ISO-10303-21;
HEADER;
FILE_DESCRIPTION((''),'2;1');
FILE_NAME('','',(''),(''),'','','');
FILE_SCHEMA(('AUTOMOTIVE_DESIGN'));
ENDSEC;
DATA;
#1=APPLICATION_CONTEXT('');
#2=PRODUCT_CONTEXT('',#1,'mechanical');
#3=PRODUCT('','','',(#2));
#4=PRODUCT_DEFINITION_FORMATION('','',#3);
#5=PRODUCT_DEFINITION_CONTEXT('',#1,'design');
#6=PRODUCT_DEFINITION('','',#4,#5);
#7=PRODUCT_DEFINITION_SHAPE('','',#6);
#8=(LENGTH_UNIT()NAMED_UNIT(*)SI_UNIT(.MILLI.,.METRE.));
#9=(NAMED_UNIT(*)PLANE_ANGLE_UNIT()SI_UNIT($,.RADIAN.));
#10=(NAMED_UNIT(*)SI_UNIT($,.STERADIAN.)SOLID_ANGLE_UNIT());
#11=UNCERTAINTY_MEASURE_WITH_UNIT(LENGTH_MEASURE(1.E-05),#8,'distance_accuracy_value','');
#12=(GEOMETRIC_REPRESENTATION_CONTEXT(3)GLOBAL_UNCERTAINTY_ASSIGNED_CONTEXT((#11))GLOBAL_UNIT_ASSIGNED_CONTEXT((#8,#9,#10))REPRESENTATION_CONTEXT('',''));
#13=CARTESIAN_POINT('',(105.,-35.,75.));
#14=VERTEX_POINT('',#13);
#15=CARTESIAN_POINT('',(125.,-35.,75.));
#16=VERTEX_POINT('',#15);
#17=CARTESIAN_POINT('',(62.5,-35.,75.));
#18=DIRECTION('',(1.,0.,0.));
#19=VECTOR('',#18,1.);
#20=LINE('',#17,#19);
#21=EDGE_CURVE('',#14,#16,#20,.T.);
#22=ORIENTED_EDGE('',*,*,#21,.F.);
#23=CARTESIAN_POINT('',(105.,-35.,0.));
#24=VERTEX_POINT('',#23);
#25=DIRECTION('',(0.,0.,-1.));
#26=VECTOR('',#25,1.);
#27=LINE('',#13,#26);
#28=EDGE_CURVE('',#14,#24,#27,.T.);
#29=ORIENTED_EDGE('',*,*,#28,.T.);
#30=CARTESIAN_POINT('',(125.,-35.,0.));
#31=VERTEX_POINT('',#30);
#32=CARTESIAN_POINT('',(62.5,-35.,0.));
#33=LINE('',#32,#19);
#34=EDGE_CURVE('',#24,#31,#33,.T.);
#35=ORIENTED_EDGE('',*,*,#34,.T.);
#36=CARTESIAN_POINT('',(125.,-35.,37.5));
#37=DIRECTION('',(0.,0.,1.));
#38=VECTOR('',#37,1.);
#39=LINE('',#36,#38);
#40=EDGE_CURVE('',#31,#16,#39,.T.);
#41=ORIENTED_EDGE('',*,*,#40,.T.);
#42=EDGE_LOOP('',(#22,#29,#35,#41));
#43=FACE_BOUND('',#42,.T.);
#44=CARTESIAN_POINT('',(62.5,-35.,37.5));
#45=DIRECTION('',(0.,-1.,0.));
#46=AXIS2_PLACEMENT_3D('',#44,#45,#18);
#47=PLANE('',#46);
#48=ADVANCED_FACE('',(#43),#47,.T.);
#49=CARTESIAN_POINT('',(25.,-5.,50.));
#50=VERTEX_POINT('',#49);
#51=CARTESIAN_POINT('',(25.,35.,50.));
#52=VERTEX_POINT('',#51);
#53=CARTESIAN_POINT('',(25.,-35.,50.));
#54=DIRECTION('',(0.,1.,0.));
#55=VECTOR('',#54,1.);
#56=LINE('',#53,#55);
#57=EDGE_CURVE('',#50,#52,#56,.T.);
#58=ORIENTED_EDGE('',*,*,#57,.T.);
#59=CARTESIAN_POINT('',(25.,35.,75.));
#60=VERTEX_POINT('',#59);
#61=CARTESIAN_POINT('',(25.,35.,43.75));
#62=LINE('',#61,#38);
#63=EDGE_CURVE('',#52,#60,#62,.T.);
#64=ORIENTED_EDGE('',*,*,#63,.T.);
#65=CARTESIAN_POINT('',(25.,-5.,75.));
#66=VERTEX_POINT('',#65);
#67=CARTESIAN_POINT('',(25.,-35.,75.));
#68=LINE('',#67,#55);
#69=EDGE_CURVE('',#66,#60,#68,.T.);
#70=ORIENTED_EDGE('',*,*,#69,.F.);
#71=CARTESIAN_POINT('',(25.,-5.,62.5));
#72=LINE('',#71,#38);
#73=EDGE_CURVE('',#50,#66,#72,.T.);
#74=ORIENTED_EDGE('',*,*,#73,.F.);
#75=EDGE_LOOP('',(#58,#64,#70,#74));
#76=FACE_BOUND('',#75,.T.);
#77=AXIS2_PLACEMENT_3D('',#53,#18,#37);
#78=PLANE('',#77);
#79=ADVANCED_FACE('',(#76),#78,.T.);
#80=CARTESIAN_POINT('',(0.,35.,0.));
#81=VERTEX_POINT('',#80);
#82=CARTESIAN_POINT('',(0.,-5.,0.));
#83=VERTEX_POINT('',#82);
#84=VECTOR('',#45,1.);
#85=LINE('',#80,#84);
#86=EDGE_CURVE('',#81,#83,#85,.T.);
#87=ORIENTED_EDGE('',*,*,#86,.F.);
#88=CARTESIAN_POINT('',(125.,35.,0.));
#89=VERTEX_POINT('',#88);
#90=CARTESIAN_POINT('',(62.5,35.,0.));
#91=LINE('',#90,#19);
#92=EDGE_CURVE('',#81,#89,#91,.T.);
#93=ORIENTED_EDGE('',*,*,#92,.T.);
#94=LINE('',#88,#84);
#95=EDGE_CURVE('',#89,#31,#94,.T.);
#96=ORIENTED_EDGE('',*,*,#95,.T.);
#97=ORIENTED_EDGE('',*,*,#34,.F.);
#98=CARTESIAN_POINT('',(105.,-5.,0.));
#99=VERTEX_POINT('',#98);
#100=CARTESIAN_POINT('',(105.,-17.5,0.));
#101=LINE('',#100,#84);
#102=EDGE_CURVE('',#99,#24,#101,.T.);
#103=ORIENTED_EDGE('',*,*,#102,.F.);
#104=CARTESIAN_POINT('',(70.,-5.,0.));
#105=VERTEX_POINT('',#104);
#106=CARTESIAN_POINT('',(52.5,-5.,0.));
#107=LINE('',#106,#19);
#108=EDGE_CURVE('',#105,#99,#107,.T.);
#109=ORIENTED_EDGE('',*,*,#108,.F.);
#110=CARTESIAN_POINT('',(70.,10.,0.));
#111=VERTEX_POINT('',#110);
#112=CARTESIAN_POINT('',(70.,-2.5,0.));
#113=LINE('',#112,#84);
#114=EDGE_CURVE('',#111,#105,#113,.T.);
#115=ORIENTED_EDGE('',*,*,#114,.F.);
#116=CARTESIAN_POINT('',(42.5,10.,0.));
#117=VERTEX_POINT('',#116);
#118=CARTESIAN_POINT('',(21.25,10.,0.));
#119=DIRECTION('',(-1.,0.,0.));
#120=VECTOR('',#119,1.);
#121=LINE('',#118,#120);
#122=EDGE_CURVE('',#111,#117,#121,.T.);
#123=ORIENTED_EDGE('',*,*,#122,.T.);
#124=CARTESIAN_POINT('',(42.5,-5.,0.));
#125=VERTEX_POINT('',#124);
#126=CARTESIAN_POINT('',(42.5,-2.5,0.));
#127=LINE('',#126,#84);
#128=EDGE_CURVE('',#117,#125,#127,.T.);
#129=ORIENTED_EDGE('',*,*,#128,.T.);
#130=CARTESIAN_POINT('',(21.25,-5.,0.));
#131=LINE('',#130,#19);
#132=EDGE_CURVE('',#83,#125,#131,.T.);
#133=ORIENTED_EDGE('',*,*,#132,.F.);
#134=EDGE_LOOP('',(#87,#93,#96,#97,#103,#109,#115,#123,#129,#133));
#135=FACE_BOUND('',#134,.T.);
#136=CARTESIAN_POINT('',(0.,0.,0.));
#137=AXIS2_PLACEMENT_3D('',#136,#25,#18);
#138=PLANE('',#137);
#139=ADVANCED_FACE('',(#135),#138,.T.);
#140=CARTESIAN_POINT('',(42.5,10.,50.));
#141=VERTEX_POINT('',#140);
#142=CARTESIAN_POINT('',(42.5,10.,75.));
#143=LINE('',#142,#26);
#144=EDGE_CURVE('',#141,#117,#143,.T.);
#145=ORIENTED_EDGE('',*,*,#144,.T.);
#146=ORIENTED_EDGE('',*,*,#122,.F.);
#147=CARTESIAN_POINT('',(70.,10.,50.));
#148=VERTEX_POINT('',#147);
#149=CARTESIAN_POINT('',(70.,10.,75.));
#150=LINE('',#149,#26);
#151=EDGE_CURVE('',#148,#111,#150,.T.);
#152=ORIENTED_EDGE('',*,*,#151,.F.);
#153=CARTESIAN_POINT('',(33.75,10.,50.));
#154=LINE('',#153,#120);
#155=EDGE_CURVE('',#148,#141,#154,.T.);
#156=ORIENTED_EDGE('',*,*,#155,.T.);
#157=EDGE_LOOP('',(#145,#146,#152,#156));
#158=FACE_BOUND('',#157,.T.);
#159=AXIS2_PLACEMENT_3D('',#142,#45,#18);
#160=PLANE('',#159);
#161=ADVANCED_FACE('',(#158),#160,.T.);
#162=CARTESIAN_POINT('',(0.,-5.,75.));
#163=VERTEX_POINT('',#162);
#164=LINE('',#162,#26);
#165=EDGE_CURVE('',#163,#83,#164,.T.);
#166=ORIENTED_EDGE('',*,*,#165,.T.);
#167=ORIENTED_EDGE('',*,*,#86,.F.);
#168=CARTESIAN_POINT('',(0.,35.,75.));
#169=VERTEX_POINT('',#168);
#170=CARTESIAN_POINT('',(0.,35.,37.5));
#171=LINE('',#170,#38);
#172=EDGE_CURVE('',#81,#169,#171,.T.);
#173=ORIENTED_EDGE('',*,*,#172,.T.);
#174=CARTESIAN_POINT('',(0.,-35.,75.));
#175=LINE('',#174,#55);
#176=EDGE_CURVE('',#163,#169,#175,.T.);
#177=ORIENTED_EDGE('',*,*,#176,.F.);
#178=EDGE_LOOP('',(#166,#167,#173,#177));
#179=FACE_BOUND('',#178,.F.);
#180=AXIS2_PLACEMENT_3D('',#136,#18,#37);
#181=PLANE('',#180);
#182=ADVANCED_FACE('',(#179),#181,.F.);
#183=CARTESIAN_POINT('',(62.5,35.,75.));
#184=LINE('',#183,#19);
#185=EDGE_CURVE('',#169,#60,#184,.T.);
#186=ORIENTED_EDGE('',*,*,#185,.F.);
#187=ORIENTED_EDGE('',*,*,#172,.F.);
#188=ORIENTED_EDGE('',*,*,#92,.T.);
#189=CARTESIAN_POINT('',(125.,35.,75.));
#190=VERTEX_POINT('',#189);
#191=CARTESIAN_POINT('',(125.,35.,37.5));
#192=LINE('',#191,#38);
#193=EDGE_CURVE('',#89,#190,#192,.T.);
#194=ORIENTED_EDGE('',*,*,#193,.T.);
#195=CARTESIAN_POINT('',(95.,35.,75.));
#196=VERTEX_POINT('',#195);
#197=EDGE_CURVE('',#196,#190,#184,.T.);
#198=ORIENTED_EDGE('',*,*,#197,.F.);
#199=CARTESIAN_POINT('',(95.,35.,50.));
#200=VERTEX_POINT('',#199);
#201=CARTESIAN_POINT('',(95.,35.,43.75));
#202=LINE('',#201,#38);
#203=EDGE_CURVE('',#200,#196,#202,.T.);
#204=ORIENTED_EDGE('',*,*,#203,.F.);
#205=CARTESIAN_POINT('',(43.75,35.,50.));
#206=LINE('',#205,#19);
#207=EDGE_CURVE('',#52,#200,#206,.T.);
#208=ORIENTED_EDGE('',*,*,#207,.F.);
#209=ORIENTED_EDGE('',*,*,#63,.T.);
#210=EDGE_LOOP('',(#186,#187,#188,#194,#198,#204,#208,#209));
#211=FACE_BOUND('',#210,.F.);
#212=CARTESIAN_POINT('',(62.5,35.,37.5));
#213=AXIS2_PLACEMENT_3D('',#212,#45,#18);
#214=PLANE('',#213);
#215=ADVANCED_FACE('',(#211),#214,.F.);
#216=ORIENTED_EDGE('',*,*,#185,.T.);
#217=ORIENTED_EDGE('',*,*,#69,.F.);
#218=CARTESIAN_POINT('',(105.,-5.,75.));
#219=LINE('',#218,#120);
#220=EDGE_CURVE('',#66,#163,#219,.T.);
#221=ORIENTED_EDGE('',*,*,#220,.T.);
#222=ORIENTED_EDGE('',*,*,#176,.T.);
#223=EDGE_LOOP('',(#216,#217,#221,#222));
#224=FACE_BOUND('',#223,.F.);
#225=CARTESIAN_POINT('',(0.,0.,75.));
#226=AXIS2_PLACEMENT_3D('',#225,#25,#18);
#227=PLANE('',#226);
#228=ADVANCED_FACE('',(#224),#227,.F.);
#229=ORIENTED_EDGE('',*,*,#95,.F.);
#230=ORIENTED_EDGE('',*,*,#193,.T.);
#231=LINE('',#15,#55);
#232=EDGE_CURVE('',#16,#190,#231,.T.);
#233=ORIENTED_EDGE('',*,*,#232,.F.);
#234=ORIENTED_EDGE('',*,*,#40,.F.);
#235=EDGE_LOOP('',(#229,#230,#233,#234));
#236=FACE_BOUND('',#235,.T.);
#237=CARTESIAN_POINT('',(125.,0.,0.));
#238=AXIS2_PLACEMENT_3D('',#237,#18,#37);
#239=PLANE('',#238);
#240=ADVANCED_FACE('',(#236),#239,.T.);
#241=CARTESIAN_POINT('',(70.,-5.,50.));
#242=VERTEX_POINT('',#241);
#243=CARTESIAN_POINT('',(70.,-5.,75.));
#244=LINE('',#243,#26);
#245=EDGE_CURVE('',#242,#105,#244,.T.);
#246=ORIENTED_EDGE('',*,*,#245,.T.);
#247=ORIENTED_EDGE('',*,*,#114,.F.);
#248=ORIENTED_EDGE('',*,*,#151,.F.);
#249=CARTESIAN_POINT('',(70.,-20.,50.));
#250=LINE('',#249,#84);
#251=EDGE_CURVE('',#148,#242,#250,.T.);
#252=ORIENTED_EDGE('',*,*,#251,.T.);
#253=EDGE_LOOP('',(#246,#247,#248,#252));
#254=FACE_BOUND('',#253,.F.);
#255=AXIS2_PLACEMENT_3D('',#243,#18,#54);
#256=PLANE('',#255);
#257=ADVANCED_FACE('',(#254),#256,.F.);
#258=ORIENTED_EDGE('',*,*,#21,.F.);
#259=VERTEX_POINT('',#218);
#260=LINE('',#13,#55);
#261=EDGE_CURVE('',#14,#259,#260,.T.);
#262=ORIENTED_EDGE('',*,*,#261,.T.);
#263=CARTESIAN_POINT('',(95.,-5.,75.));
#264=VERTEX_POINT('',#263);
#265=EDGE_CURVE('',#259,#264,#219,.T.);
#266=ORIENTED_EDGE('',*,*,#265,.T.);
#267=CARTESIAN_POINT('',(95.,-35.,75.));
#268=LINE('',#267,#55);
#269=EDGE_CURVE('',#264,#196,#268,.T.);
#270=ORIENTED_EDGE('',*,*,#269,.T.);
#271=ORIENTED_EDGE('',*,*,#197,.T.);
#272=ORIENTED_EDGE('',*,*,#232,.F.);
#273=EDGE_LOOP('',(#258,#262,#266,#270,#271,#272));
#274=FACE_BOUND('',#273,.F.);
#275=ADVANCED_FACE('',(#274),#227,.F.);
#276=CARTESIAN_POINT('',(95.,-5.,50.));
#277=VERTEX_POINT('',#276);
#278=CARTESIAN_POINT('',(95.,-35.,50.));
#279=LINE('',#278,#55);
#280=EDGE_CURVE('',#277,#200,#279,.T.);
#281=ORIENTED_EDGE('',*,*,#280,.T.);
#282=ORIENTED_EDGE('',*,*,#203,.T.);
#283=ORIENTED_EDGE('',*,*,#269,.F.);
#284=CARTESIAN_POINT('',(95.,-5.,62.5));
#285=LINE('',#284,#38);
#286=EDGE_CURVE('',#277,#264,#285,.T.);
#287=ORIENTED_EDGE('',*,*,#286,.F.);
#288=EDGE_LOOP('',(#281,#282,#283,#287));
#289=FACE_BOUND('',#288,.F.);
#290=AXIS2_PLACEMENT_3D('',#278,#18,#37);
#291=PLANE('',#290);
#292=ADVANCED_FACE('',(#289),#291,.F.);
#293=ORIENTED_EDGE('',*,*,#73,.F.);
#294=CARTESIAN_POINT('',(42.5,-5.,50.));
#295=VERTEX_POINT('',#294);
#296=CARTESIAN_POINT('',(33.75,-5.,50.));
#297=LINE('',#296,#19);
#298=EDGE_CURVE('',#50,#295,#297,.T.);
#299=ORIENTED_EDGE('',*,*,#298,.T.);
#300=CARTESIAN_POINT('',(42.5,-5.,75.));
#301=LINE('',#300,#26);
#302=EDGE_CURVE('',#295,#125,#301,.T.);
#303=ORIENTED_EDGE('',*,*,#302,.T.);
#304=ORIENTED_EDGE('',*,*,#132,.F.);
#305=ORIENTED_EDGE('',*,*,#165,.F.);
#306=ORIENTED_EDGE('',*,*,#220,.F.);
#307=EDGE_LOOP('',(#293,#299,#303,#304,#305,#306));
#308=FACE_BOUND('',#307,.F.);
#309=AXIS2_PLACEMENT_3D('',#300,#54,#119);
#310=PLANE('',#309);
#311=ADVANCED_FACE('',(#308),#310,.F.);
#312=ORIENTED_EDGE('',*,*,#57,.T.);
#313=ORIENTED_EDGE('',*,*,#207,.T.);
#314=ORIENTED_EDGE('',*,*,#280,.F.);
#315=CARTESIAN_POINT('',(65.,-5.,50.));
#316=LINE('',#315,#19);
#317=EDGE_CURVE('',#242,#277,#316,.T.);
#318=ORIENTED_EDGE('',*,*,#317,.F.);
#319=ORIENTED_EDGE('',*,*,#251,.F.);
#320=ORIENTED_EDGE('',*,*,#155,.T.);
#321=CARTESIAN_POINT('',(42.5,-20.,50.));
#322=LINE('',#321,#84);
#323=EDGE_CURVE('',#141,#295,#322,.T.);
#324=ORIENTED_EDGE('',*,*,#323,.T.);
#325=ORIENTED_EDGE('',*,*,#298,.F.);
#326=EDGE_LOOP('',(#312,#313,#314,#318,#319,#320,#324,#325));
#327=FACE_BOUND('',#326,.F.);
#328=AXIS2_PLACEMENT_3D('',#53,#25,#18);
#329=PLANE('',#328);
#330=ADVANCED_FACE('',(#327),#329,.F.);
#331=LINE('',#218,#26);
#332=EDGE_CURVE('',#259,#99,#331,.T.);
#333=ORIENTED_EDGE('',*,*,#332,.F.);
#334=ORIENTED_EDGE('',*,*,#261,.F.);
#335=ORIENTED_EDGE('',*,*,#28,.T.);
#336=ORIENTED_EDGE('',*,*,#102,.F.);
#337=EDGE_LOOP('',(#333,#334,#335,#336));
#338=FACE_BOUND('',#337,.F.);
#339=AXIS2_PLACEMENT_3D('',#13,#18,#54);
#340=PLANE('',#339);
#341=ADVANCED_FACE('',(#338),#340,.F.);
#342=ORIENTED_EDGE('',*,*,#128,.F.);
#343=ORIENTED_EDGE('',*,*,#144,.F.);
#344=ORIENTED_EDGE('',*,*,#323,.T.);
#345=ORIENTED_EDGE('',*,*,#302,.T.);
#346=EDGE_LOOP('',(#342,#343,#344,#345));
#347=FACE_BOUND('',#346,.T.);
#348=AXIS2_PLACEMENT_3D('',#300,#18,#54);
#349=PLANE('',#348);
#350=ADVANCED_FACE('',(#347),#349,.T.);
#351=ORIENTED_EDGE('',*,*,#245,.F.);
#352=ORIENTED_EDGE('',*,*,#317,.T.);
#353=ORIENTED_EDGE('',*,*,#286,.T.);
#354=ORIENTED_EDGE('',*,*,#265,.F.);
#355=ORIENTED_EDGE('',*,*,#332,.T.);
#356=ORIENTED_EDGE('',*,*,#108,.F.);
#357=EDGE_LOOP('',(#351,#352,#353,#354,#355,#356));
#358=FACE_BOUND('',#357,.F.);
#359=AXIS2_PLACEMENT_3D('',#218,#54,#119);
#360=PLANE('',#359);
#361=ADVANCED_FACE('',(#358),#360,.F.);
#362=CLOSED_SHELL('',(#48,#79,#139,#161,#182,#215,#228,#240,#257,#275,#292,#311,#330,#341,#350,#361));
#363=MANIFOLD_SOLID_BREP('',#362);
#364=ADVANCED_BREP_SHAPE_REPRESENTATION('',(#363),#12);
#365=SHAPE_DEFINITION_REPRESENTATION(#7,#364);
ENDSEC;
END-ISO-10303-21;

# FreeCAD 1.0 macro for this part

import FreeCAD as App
import Part
import Sketcher
from FreeCAD import Vector
Q = App.Units.Quantity


def add_polygon(sketch, points):
    """Adds a closed chain of lines whose ends are joined by coincident constraints."""
    first, n = sketch.GeometryCount, len(points)
    for a, b in zip(points, points[1:] + points[:1]):
        sketch.addGeometry(Part.LineSegment(App.Vector(*a, 0), App.Vector(*b, 0)), False)
    for i in range(n):
        sketch.addConstraint(Sketcher.Constraint("Coincident", first + i, 2, first + (i + 1) % n, 1))

doc = App.newDocument("Part")
body = doc.addObject("PartDesign::Body", "Body")

# Sketch on XZ plane
sketch1 = doc.addObject("Sketcher::SketchObject", "Sketch")
body.addObject(sketch1)
sketch1.AttachmentSupport = (doc.XZ_Plane, [""])
sketch1.MapMode = "FlatFace"
add_polygon(sketch1, [(0, 75), (0, 0), (125, 0), (125, 75)])  # lines 0-3
sketch1.addConstraint(Sketcher.Constraint("Vertical", 0))
sketch1.addConstraint(Sketcher.Constraint("Horizontal", 1))
sketch1.addConstraint(Sketcher.Constraint("Vertical", 2))
sketch1.addConstraint(Sketcher.Constraint("Horizontal", 3))
sketch1.addConstraint(Sketcher.Constraint("Coincident", 0, 2, -1, 1))
sketch1.addConstraint(Sketcher.Constraint("DistanceX", 1, 1, 1, 2, Q("125 mm")))
sketch1.addConstraint(Sketcher.Constraint("DistanceY", 0, 2, 0, 1, Q("75 mm")))
pad1 = doc.addObject("PartDesign::Pad", "Pad")
body.addObject(pad1)
pad1.Profile = sketch1
pad1.Length = 70
pad1.Midplane = True

# Sketch on XZ plane
sketch2 = doc.addObject("Sketcher::SketchObject", "Sketch001")
body.addObject(sketch2)
sketch2.AttachmentSupport = (doc.XZ_Plane, [""])
sketch2.MapMode = "FlatFace"
sketch2.AttachmentOffset = App.Placement(Vector(0, 0, 35), App.Rotation())
add_polygon(sketch2, [(25, 75), (25, 50), (95, 50), (95, 75)])  # lines 0-3
sketch2.addConstraint(Sketcher.Constraint("Vertical", 0))
sketch2.addConstraint(Sketcher.Constraint("Horizontal", 1))
sketch2.addConstraint(Sketcher.Constraint("Vertical", 2))
sketch2.addConstraint(Sketcher.Constraint("Horizontal", 3))
sketch2.addConstraint(Sketcher.Constraint("DistanceX", 1, 1, 1, 2, Q("70 mm")))
sketch2.addConstraint(Sketcher.Constraint("DistanceY", 0, 2, 0, 1, Q("25 mm")))
sketch2.addConstraint(Sketcher.Constraint("DistanceX", -1, 1, 0, 2, Q("25 mm")))
sketch2.addConstraint(Sketcher.Constraint("DistanceY", -1, 1, 0, 2, Q("50 mm")))
pocket1 = doc.addObject("PartDesign::Pocket", "Pocket")
body.addObject(pocket1)
pocket1.Profile = sketch2
pocket1.Type = "ThroughAll"

# Sketch on XY plane
sketch3 = doc.addObject("Sketcher::SketchObject", "Sketch002")
body.addObject(sketch3)
sketch3.AttachmentSupport = (doc.XY_Plane, [""])
sketch3.MapMode = "FlatFace"
sketch3.AttachmentOffset = App.Placement(Vector(0, 0, 75), App.Rotation())
add_polygon(sketch3, [(42, -5), (0, -5), (0, -35), (105, -35), (105, -5), (70, -5), (70, 10), (42, 10)])  # lines 0-7
sketch3.addConstraint(Sketcher.Constraint("Horizontal", 0))
sketch3.addConstraint(Sketcher.Constraint("Vertical", 1))
sketch3.addConstraint(Sketcher.Constraint("Horizontal", 2))
sketch3.addConstraint(Sketcher.Constraint("Vertical", 3))
sketch3.addConstraint(Sketcher.Constraint("Horizontal", 4))
sketch3.addConstraint(Sketcher.Constraint("Vertical", 5))
sketch3.addConstraint(Sketcher.Constraint("Horizontal", 6))
sketch3.addConstraint(Sketcher.Constraint("Vertical", 7))
sketch3.addConstraint(Sketcher.Constraint("PointOnObject", 0, 2, -2))
sketch3.addConstraint(Sketcher.Constraint("Horizontal", 0, 2, 3, 2))
sketch3.addConstraint(Sketcher.Constraint("DistanceX", 2, 1, 2, 2, Q("105 mm")))
sketch3.addConstraint(Sketcher.Constraint("DistanceX", 4, 2, 4, 1, Q("35 mm")))
sketch3.addConstraint(Sketcher.Constraint("DistanceY", 1, 2, 1, 1, Q("30 mm")))
sketch3.addConstraint(Sketcher.Constraint("DistanceY", 5, 1, 5, 2, Q("15 mm")))
sketch3.addConstraint(Sketcher.Constraint("DistanceX", 0, 2, 0, 1, Q("42.5 mm")))
sketch3.addConstraint(Sketcher.Constraint("DistanceY", 0, 2, -1, 1, Q("5 mm")))
pocket2 = doc.addObject("PartDesign::Pocket", "Pocket001")
body.addObject(pocket2)
pocket2.Profile = sketch3
pocket2.Type = "ThroughAll"

doc.recompute()
